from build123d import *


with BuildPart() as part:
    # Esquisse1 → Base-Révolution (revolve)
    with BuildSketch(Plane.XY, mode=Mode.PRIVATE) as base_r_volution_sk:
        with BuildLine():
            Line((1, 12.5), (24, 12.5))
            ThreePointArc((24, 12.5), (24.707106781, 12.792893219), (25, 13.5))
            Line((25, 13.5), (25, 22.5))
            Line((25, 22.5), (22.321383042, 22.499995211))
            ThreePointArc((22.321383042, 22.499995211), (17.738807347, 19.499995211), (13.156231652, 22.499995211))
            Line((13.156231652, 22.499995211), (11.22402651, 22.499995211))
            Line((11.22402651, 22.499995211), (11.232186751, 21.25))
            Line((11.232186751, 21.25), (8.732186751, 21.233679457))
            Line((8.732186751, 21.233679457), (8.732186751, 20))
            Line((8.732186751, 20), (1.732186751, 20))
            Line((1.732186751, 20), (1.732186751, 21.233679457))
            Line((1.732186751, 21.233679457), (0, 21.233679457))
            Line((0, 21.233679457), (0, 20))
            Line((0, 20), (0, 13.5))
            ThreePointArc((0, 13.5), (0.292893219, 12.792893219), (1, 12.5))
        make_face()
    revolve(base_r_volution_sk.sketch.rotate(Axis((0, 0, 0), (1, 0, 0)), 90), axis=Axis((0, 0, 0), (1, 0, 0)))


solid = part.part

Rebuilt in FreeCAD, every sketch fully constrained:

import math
import FreeCAD as App
import Part
import Sketcher

V = App.Vector
Q = App.Units.Quantity

doc = App.newDocument("Part")
body = doc.addObject("PartDesign::Body", "Body")

# Sketch on XY plane
sketch1 = doc.addObject("Sketcher::SketchObject", "Sketch")
body.addObject(sketch1)
sketch1.AttachmentSupport = (doc.XY_Plane, [""])
sketch1.MapMode = "FlatFace"
sketch1.addGeometry([
    Part.LineSegment(V(1, 12.5, 0), V(24, 12.5, 0)),  # 0
    Part.ArcOfCircle(Part.Circle(V(24, 13.5, 0), V(0, 0, 1), 1), math.radians(-90), math.radians(0)),  # 1
    Part.LineSegment(V(25, 13.5, 0), V(25, 22.5, 0)),  # 2
    Part.LineSegment(V(25, 22.5, 0), V(22.3, 22.5, 0)),  # 3
    Part.ArcOfCircle(Part.Circle(V(17.7, 24.5, 0), V(0, 0, 1), 5), math.radians(-156), math.radians(-24)),  # 4
    Part.LineSegment(V(13.2, 22.5, 0), V(11.2, 22.5, 0)),  # 5
    Part.LineSegment(V(11.2, 22.5, 0), V(11.2, 21.2, 0)),  # 6
    Part.LineSegment(V(11.2, 21.2, 0), V(8.7, 21.2, 0)),  # 7
    Part.LineSegment(V(8.7, 21.2, 0), V(8.7, 20, 0)),  # 8
    Part.LineSegment(V(8.7, 20, 0), V(1.7, 20, 0)),  # 9
    Part.LineSegment(V(1.7, 20, 0), V(1.7, 21.2, 0)),  # 10
    Part.LineSegment(V(1.7, 21.2, 0), V(0, 21.2, 0)),  # 11
    Part.LineSegment(V(0, 21.2, 0), V(0, 13.5, 0)),  # 12
    Part.ArcOfCircle(Part.Circle(V(1, 13.5, 0), V(0, 0, 1), 1), math.radians(-180), math.radians(-90)),  # 13
], False)
sketch1.addConstraint([
    Sketcher.Constraint("Tangent", 0, 2, 1, 1),
    Sketcher.Constraint("Tangent", 1, 2, 2, 1),
    Sketcher.Constraint("Coincident", 2, 2, 3, 1),
    Sketcher.Constraint("Coincident", 3, 2, 4, 2),
    Sketcher.Constraint("Coincident", 4, 1, 5, 1),
    Sketcher.Constraint("Coincident", 5, 2, 6, 1),
    Sketcher.Constraint("Coincident", 6, 2, 7, 1),
    Sketcher.Constraint("Coincident", 7, 2, 8, 1),
    Sketcher.Constraint("Coincident", 8, 2, 9, 1),
    Sketcher.Constraint("Coincident", 9, 2, 10, 1),
    Sketcher.Constraint("Coincident", 10, 2, 11, 1),
    Sketcher.Constraint("Coincident", 11, 2, 12, 1),
    Sketcher.Constraint("Tangent", 12, 2, 13, 1),
    Sketcher.Constraint("Tangent", 13, 2, 0, 1),
    Sketcher.Constraint("Horizontal", 0),
    Sketcher.Constraint("Vertical", 2),
    Sketcher.Constraint("Horizontal", 5),
    Sketcher.Constraint("Vertical", 8),
    Sketcher.Constraint("Horizontal", 9),
    Sketcher.Constraint("Vertical", 10),
    Sketcher.Constraint("Horizontal", 11),
    Sketcher.Constraint("Vertical", 12),
    Sketcher.Constraint("Equal", 1, 13),
    Sketcher.Constraint("PointOnObject", 11, 2, -2),
    Sketcher.Constraint("Perpendicular", 6, 7),
    Sketcher.Constraint("Horizontal", 3, 2, 4, 1),
    Sketcher.Constraint("Horizontal", 7, 2, 10, 2),
    Sketcher.Constraint("Radius", 1, Q("1 mm")),
    Sketcher.Constraint("Radius", 4, Q("5 mm")),
    Sketcher.Constraint("DistanceX", 0, 1, 0, 2, Q("23 mm")),
    Sketcher.Constraint("DistanceX", 9, 2, 9, 1, Q("7 mm")),
    Sketcher.Constraint("DistanceY", 2, 1, 2, 2, Q("9 mm")),
    Sketcher.Constraint("DistanceY", -1, 1, 8, 2, Q("20 mm")),
    Sketcher.Constraint("DistanceY", 3, 2, 4, 3, Q("2 mm")),
    Sketcher.Constraint("DistanceY", -1, 1, 1, 3, Q("13.5 mm")),
    Sketcher.Constraint("DistanceX", 7, 2, 6, 2, Q("2.5 mm")),
    Sketcher.Constraint("DistanceY", -1, 1, 6, 2, Q("21.25 mm")),
    Sketcher.Constraint("DistanceY", 8, 2, 8, 1, Q("1.233679 mm")),
    Sketcher.Constraint("Distance", 6, Q("1.250022 mm")),
    Sketcher.Constraint("DistanceX", 5, 2, 5, 1, Q("1.932205 mm")),
    Sketcher.Constraint("DistanceX", 11, 2, 11, 1, Q("1.732187 mm")),
])
revolution = doc.addObject("PartDesign::Revolution", "Revolution")
body.addObject(revolution)
revolution.Profile = sketch1
revolution.ReferenceAxis = (sketch1, ["H_Axis"])
revolution.Angle = 360

doc.recompute()
